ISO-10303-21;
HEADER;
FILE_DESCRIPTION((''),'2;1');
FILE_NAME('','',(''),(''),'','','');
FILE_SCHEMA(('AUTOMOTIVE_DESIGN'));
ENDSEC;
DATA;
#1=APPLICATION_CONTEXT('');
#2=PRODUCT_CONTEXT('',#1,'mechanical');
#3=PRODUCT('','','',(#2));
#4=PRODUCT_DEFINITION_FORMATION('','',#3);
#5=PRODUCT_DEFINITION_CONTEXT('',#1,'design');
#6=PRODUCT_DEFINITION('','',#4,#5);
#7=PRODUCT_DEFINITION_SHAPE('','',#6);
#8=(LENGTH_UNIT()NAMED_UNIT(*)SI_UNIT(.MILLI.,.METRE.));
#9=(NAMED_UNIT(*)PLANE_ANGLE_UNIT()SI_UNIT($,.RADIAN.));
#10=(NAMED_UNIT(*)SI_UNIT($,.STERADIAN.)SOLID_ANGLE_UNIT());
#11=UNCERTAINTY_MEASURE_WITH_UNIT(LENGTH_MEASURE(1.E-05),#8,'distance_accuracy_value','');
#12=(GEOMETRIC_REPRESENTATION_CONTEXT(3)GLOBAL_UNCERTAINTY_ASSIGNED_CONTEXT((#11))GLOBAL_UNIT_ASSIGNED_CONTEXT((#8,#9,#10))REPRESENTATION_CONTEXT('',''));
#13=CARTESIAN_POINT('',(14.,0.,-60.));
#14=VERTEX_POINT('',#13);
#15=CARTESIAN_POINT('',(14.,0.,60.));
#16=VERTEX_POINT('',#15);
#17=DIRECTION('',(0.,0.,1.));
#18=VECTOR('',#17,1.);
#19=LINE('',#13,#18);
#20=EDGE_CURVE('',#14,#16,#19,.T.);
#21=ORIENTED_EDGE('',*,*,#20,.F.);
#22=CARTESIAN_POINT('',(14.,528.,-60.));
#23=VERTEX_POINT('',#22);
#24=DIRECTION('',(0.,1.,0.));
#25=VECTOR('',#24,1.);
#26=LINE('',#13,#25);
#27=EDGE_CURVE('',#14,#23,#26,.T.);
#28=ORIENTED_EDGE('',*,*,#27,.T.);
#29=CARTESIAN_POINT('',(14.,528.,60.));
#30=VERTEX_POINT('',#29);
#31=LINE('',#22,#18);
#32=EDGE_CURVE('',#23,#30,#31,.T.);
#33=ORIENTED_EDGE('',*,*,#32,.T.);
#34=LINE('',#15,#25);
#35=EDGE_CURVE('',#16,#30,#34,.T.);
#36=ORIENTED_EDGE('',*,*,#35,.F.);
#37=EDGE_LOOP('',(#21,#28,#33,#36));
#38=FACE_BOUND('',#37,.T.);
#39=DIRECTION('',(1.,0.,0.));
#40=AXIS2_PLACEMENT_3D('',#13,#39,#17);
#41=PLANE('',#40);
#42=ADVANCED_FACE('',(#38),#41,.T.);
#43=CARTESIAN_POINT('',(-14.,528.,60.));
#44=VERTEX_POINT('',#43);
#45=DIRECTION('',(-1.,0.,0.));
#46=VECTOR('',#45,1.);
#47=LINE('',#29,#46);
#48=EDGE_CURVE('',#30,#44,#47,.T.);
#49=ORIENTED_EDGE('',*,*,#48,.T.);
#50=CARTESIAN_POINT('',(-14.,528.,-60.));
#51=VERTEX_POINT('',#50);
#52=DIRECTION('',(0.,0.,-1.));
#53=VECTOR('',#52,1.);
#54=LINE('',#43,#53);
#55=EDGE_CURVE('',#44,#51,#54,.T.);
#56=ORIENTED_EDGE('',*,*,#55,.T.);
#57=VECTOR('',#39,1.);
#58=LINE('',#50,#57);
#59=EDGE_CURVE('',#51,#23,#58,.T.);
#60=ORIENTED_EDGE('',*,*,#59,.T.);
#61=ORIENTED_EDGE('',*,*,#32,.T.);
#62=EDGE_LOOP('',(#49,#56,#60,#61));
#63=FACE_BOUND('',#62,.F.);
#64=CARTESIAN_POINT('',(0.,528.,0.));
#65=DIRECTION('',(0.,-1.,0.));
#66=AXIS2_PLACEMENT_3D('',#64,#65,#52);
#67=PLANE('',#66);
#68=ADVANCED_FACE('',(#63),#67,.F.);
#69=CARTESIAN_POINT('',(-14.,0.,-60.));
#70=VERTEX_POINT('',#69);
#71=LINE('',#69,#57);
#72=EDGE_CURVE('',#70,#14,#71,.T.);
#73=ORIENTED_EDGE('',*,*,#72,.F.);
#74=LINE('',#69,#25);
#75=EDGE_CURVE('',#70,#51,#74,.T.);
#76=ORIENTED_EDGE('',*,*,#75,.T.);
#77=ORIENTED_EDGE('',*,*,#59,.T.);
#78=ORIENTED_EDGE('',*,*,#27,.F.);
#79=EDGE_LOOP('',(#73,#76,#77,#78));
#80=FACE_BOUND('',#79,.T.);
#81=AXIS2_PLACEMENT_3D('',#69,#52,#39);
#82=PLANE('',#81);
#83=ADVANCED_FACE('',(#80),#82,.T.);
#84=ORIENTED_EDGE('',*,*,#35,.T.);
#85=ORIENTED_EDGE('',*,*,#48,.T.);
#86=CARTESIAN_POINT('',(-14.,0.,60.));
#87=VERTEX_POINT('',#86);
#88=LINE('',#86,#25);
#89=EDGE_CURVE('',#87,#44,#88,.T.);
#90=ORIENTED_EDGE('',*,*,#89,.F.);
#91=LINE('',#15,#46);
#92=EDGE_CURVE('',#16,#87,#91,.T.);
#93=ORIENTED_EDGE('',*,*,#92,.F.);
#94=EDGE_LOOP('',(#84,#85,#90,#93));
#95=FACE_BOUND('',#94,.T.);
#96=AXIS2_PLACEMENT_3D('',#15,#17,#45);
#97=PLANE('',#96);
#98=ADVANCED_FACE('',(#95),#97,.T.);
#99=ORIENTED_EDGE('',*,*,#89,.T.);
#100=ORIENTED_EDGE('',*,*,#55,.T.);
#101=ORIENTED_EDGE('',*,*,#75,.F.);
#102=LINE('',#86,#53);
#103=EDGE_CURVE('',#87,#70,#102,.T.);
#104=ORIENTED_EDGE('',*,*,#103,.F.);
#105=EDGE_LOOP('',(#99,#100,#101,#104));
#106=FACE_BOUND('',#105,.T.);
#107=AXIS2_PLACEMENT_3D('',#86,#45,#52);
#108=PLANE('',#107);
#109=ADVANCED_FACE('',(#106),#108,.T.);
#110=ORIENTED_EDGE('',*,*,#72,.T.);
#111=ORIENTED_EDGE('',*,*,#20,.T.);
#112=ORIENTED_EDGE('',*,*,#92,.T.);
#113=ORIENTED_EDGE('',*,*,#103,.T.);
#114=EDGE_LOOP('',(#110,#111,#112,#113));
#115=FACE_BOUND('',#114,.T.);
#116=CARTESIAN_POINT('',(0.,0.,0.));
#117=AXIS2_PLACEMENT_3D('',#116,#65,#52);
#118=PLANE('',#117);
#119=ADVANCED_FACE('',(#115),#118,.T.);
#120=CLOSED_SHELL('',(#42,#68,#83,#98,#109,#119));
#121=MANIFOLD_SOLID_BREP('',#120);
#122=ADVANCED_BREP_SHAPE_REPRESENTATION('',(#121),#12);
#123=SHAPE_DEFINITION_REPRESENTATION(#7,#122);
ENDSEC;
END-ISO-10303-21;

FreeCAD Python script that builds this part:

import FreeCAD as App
import Part
import Sketcher


def add_polygon(sketch, points):
    """Adds a closed chain of lines whose ends are joined by coincident constraints."""
    first, n = sketch.GeometryCount, len(points)
    for a, b in zip(points, points[1:] + points[:1]):
        sketch.addGeometry(Part.LineSegment(App.Vector(*a, 0), App.Vector(*b, 0)), False)
    for i in range(n):
        sketch.addConstraint(Sketcher.Constraint("Coincident", first + i, 2, first + (i + 1) % n, 1))

doc = App.newDocument("Part")
body = doc.addObject("PartDesign::Body", "Body")

sketch1 = body.newObject("Sketcher::SketchObject", "Sketch")
sketch1.AttachmentSupport = (doc.getObject("XZ_Plane"), [""])
sketch1.MapMode = "FlatFace"
add_polygon(sketch1, [(-14, 60), (-14, -60), (14, -60), (14, 60)])
sketch1.addConstraint([
    Sketcher.Constraint("Vertical", 0),
    Sketcher.Constraint("Horizontal", 1),
    Sketcher.Constraint("Vertical", 2),
    Sketcher.Constraint("Horizontal", 3),
    Sketcher.Constraint("Symmetric", 0, 2, 2, 2, -1, 1),
    Sketcher.Constraint("DistanceX", 1, 1, 1, 2, 28.0),
    Sketcher.Constraint("DistanceY", 0, 2, 0, 1, 120.0),
])
pad1 = body.newObject("PartDesign::Pad", "Pad")
pad1.Profile = sketch1
pad1.Length = 528
pad1.Reversed = True

doc.recompute()
